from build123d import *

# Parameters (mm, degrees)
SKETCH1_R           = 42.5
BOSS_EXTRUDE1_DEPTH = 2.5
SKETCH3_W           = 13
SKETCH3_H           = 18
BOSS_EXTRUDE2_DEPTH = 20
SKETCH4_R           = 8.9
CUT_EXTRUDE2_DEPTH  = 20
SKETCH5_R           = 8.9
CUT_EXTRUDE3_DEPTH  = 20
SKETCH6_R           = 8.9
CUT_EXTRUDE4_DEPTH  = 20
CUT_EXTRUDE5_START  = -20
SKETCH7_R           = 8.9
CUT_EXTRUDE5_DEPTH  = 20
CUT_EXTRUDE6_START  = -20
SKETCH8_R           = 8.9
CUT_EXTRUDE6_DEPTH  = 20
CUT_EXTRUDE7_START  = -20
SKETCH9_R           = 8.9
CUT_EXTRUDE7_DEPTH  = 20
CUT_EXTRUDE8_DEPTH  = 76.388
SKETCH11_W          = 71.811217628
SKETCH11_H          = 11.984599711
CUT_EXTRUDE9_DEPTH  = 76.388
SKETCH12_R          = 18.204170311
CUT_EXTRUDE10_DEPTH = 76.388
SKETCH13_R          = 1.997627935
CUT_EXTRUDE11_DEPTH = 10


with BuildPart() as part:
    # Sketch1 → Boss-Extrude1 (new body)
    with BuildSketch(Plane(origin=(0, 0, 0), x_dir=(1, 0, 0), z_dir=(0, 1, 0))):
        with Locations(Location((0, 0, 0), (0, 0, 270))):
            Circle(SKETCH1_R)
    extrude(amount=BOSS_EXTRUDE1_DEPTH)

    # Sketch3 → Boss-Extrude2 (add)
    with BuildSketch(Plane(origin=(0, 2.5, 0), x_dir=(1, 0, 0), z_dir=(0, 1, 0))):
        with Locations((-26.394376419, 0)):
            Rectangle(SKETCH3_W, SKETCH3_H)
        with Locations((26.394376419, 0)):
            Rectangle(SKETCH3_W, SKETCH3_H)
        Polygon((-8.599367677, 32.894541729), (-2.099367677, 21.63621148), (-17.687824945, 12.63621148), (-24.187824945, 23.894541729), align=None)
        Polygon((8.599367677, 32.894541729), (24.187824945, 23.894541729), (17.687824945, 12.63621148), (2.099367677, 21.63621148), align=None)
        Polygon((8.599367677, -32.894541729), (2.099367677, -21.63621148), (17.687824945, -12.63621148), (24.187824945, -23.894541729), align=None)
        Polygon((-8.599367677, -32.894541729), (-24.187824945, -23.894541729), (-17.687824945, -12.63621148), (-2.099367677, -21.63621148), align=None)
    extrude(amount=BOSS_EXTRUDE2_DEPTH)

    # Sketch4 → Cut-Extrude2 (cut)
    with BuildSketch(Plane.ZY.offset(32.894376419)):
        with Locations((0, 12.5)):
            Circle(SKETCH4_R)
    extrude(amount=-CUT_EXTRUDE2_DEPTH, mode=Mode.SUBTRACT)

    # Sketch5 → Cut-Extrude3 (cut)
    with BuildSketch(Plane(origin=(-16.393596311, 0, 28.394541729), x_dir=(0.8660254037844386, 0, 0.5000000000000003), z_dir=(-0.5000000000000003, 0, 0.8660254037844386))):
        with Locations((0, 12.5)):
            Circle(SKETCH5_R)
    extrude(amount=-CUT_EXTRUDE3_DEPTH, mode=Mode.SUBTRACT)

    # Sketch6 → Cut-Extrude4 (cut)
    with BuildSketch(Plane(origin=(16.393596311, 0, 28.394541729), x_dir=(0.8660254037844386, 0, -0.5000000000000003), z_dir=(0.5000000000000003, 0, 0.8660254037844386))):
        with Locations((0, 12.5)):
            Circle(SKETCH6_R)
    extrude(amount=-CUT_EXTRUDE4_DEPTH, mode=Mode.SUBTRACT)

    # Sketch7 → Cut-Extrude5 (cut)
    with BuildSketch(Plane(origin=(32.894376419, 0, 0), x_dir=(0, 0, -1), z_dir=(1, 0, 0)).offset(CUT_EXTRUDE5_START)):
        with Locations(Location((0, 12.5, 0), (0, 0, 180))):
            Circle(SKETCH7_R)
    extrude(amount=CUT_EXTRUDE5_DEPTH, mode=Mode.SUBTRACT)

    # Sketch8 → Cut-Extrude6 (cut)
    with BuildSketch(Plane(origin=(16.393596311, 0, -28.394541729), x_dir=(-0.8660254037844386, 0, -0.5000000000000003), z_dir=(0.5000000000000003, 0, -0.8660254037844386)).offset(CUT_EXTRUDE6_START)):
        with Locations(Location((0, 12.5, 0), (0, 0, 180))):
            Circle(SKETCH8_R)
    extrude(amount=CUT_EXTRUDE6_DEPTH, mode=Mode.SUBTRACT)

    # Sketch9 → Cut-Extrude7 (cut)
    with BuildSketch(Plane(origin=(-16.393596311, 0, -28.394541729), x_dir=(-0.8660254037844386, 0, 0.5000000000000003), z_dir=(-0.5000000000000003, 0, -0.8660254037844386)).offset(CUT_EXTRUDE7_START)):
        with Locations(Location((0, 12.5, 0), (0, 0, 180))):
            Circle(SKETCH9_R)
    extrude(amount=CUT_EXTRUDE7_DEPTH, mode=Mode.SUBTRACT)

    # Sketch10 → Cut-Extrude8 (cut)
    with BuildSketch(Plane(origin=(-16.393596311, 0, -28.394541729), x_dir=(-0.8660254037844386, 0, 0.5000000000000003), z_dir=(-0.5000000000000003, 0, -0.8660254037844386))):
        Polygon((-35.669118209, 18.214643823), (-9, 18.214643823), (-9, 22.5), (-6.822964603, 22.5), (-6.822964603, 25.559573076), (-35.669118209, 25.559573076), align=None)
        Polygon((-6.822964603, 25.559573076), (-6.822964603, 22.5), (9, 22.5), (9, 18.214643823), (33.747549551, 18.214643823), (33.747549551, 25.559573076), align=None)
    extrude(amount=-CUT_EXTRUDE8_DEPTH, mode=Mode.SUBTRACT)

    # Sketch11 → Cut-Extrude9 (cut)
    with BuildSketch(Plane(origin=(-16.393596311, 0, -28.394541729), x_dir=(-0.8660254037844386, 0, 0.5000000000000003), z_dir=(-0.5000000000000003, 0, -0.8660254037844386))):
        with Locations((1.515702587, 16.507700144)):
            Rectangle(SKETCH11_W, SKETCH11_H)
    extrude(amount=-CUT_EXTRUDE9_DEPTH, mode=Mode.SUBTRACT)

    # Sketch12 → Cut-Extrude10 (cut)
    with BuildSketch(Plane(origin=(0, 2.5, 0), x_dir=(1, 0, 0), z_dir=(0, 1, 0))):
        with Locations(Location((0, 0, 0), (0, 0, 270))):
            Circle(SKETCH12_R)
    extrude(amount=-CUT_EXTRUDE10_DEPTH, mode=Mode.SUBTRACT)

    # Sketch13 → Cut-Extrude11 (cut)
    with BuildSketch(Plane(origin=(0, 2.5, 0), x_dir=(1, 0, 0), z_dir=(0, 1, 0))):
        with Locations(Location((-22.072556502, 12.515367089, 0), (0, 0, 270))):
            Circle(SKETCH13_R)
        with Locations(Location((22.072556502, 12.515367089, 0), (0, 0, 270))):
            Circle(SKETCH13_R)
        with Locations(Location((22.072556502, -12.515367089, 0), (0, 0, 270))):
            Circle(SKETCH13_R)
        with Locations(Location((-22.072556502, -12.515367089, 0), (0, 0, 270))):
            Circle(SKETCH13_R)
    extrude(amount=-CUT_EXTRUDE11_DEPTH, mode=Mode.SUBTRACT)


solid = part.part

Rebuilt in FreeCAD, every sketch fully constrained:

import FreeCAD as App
import Part
import Sketcher
from FreeCAD import Vector
Q = App.Units.Quantity


def add_polygon(sketch, points):
    """Adds a closed chain of lines whose ends are joined by coincident constraints."""
    first, n = sketch.GeometryCount, len(points)
    for a, b in zip(points, points[1:] + points[:1]):
        sketch.addGeometry(Part.LineSegment(App.Vector(*a, 0), App.Vector(*b, 0)), False)
    for i in range(n):
        sketch.addConstraint(Sketcher.Constraint("Coincident", first + i, 2, first + (i + 1) % n, 1))

doc = App.newDocument("Part")
body = doc.addObject("PartDesign::Body", "Body")

sketch1 = body.newObject("Sketcher::SketchObject", "Sketch")
sketch1.AttachmentSupport = (doc.getObject("XZ_Plane"), [""])
sketch1.MapMode = "FlatFace"
sketch1.addGeometry(Part.Circle(Vector(0, 0, 0), Vector(0, 0, 1), 42), False)
sketch1.addConstraint(Sketcher.Constraint("Coincident", 0, 3, -1, 1))
sketch1.addConstraint(Sketcher.Constraint("Diameter", 0, Q("85 mm")))
pad1 = body.newObject("PartDesign::Pad", "Pad")
pad1.Profile = sketch1
pad1.Length = 2.5
pad1.Reversed = True

sketch2 = body.newObject("Sketcher::SketchObject", "Sketch001")
sketch2.AttachmentSupport = (doc.getObject("XZ_Plane"), [""])
sketch2.MapMode = "FlatFace"
sketch2.AttachmentOffset = App.Placement(Vector(0, 0, -2.5), App.Rotation())
add_polygon(sketch2, [(-33, -9), (-33, 9), (-20, 9), (-20, -9)])
add_polygon(sketch2, [(20, -9), (20, 9), (33, 9), (33, -9)])
add_polygon(sketch2, [(-2, -22), (-9, -33), (-24, -24), (-18, -13)])
add_polygon(sketch2, [(24, -24), (9, -33), (2, -22), (18, -13)])
add_polygon(sketch2, [(2, 22), (9, 33), (24, 24), (18, 13)])
add_polygon(sketch2, [(-24, 24), (-9, 33), (-2, 22), (-18, 13)])
sketch2.addConstraint(Sketcher.Constraint("Vertical", 0))
sketch2.addConstraint(Sketcher.Constraint("Horizontal", 1))
sketch2.addConstraint(Sketcher.Constraint("Vertical", 2))
sketch2.addConstraint(Sketcher.Constraint("Horizontal", 3))
sketch2.addConstraint(Sketcher.Constraint("Vertical", 4))
sketch2.addConstraint(Sketcher.Constraint("Horizontal", 5))
sketch2.addConstraint(Sketcher.Constraint("Vertical", 6))
sketch2.addConstraint(Sketcher.Constraint("Horizontal", 7))
sketch2.addConstraint(Sketcher.Constraint("Symmetric", 2, 2, 4, 2, -1, 1))
sketch2.addConstraint(Sketcher.Constraint("Symmetric", 0, 2, 6, 2, -1, 1))
sketch2.addConstraint(Sketcher.Constraint("Symmetric", 8, 2, 16, 2, -1, 1))
sketch2.addConstraint(Sketcher.Constraint("Symmetric", 9, 2, 17, 2, -1, 1))
sketch2.addConstraint(Sketcher.Constraint("Symmetric", 10, 2, 18, 2, -1, 1))
sketch2.addConstraint(Sketcher.Constraint("Symmetric", 11, 2, 19, 2, -1, 1))
sketch2.addConstraint(Sketcher.Constraint("Symmetric", 12, 2, 20, 2, -1, 1))
sketch2.addConstraint(Sketcher.Constraint("Symmetric", 13, 2, 21, 2, -1, 1))
sketch2.addConstraint(Sketcher.Constraint("Symmetric", 14, 2, 22, 2, -1, 1))
sketch2.addConstraint(Sketcher.Constraint("Symmetric", 15, 2, 23, 2, -1, 1))
sketch2.addConstraint(Sketcher.Constraint("Symmetric", 8, 2, 12, 2, -2))
sketch2.addConstraint(Sketcher.Constraint("Symmetric", 11, 2, 13, 2, -2))
sketch2.addConstraint(Sketcher.Constraint("Symmetric", 10, 2, 14, 2, -2))
sketch2.addConstraint(Sketcher.Constraint("Symmetric", 9, 2, 15, 2, -2))
sketch2.addConstraint(Sketcher.Constraint("Perpendicular", 8, 9))
sketch2.addConstraint(Sketcher.Constraint("Perpendicular", 9, 10))
sketch2.addConstraint(Sketcher.Constraint("Perpendicular", 10, 11))
sketch2.addConstraint(Sketcher.Constraint("Horizontal", 1, 2, 4, 2))
sketch2.addConstraint(Sketcher.Constraint("DistanceX", 1, 1, 1, 2, Q("13 mm")))
sketch2.addConstraint(Sketcher.Constraint("DistanceY", 0, 1, 0, 2, Q("18 mm")))
sketch2.addConstraint(Sketcher.Constraint("Angle", 8, Q("-120 deg")))
sketch2.addConstraint(Sketcher.Constraint("Distance", 8, Q("13 mm")))
sketch2.addConstraint(Sketcher.Constraint("Distance", 9, Q("18 mm")))
sketch2.addConstraint(Sketcher.Constraint("DistanceY", 8, 2, -1, 1, Q("32.894542 mm")))
sketch2.addConstraint(Sketcher.Constraint("DistanceX", 2, 2, 8, 2, Q("11.295009 mm")))
sketch2.addConstraint(Sketcher.Constraint("DistanceX", 0, 2, -1, 1, Q("32.894376 mm")))
pad2 = body.newObject("PartDesign::Pad", "Pad001")
pad2.Profile = sketch2
pad2.Length = 20
pad2.Reversed = True

sketch3 = body.newObject("Sketcher::SketchObject", "Sketch002")
sketch3.AttachmentSupport = (doc.getObject("YZ_Plane"), [""])
sketch3.MapMode = "FlatFace"
sketch3.AttachmentOffset = App.Placement(Vector(0, 0, -32.894376), App.Rotation())
sketch3.addGeometry(Part.Circle(Vector(12, 0, 0), Vector(0, 0, 1), 9), False)
sketch3.addConstraint(Sketcher.Constraint("PointOnObject", 0, 3, -1))
sketch3.addConstraint(Sketcher.Constraint("Diameter", 0, Q("17.8 mm")))
sketch3.addConstraint(Sketcher.Constraint("DistanceX", -1, 1, 0, 3, Q("12.5 mm")))
pocket1 = body.newObject("PartDesign::Pocket", "Pocket")
pocket1.Profile = sketch3
pocket1.Length = 20
pocket1.Reversed = True

sketch4 = body.newObject("Sketcher::SketchObject", "Sketch003")
sketch4.Placement = App.Placement(Vector(-16.393596, 0, 28.394542), App.Rotation(Vector(0.866025404, 0, 0.5), Vector(0, 1, 0), Vector(-0.5, 0, 0.866025404), "ZXY"))
sketch4.addGeometry(Part.Circle(Vector(0, 13, 0), Vector(0, 0, 1), 9), False)
sketch4.addConstraint(Sketcher.Constraint("PointOnObject", 0, 3, -2))
sketch4.addConstraint(Sketcher.Constraint("Diameter", 0, Q("17.8 mm")))
sketch4.addConstraint(Sketcher.Constraint("DistanceY", -1, 1, 0, 3, Q("12.5 mm")))
pocket2 = body.newObject("PartDesign::Pocket", "Pocket001")
pocket2.Profile = sketch4
pocket2.Length = 20

sketch5 = body.newObject("Sketcher::SketchObject", "Sketch004")
sketch5.Placement = App.Placement(Vector(16.393596, 0, 28.394542), App.Rotation(Vector(0.866025404, 0, -0.5), Vector(0, 1, 0), Vector(0.5, 0, 0.866025404), "ZXY"))
sketch5.addGeometry(Part.Circle(Vector(0, 13, 0), Vector(0, 0, 1), 9), False)
sketch5.addConstraint(Sketcher.Constraint("PointOnObject", 0, 3, -2))
sketch5.addConstraint(Sketcher.Constraint("Diameter", 0, Q("17.8 mm")))
sketch5.addConstraint(Sketcher.Constraint("DistanceY", -1, 1, 0, 3, Q("12.5 mm")))
pocket3 = body.newObject("PartDesign::Pocket", "Pocket002")
pocket3.Profile = sketch5
pocket3.Length = 20

sketch6 = body.newObject("Sketcher::SketchObject", "Sketch005")
sketch6.AttachmentSupport = (doc.getObject("YZ_Plane"), [""])
sketch6.MapMode = "FlatFace"
sketch6.AttachmentOffset = App.Placement(Vector(0, 0, 12.894376), App.Rotation())
sketch6.addGeometry(Part.Circle(Vector(12, 0, 0), Vector(0, 0, 1), 9), False)
sketch6.addConstraint(Sketcher.Constraint("PointOnObject", 0, 3, -1))
sketch6.addConstraint(Sketcher.Constraint("Diameter", 0, Q("17.8 mm")))
sketch6.addConstraint(Sketcher.Constraint("DistanceX", -1, 1, 0, 3, Q("12.5 mm")))
pocket4 = body.newObject("PartDesign::Pocket", "Pocket003")
pocket4.Profile = sketch6
pocket4.Length = 20
pocket4.Reversed = True

sketch7 = body.newObject("Sketcher::SketchObject", "Sketch006")
sketch7.Placement = App.Placement(Vector(6.393596, 0, -11.074034), App.Rotation(Vector(-0.866025404, 0, -0.5), Vector(0, 1, 0), Vector(0.5, 0, -0.866025404), "ZXY"))
sketch7.addGeometry(Part.Circle(Vector(0, 13, 0), Vector(0, 0, 1), 9), False)
sketch7.addConstraint(Sketcher.Constraint("PointOnObject", 0, 3, -2))
sketch7.addConstraint(Sketcher.Constraint("Diameter", 0, Q("17.8 mm")))
sketch7.addConstraint(Sketcher.Constraint("DistanceY", -1, 1, 0, 3, Q("12.5 mm")))
pocket5 = body.newObject("PartDesign::Pocket", "Pocket004")
pocket5.Profile = sketch7
pocket5.Length = 20
pocket5.Reversed = True

sketch8 = body.newObject("Sketcher::SketchObject", "Sketch007")
sketch8.Placement = App.Placement(Vector(-6.393596, 0, -11.074034), App.Rotation(Vector(-0.866025404, 0, 0.5), Vector(0, 1, 0), Vector(-0.5, 0, -0.866025404), "ZXY"))
sketch8.addGeometry(Part.Circle(Vector(0, 13, 0), Vector(0, 0, 1), 9), False)
sketch8.addConstraint(Sketcher.Constraint("PointOnObject", 0, 3, -2))
sketch8.addConstraint(Sketcher.Constraint("Diameter", 0, Q("17.8 mm")))
sketch8.addConstraint(Sketcher.Constraint("DistanceY", -1, 1, 0, 3, Q("12.5 mm")))
pocket6 = body.newObject("PartDesign::Pocket", "Pocket005")
pocket6.Profile = sketch8
pocket6.Length = 20
pocket6.Reversed = True

sketch9 = body.newObject("Sketcher::SketchObject", "Sketch008")
sketch9.Placement = App.Placement(Vector(-16.393596, 0, -28.394542), App.Rotation(Vector(-0.866025404, 0, 0.5), Vector(0, 1, 0), Vector(-0.5, 0, -0.866025404), "ZXY"))
add_polygon(sketch9, [(-35.7, 18.2), (-9, 18.2), (-9, 22.5), (9, 22.5), (9, 18.2), (33.7, 18.2), (33.7, 25.6), (-35.7, 25.6)])
sketch9.addConstraint(Sketcher.Constraint("Horizontal", 0))
sketch9.addConstraint(Sketcher.Constraint("Vertical", 1))
sketch9.addConstraint(Sketcher.Constraint("Horizontal", 2))
sketch9.addConstraint(Sketcher.Constraint("Vertical", 3))
sketch9.addConstraint(Sketcher.Constraint("Horizontal", 4))
sketch9.addConstraint(Sketcher.Constraint("Vertical", 5))
sketch9.addConstraint(Sketcher.Constraint("Horizontal", 6))
sketch9.addConstraint(Sketcher.Constraint("Vertical", 7))
sketch9.addConstraint(Sketcher.Constraint("Symmetric", 0, 2, 3, 2, -2))
sketch9.addConstraint(Sketcher.Constraint("DistanceX", 2, 1, 2, 2, Q("18 mm")))
sketch9.addConstraint(Sketcher.Constraint("DistanceY", -1, 1, 1, 2, Q("22.5 mm")))
sketch9.addConstraint(Sketcher.Constraint("DistanceX", 0, 1, 0, 2, Q("26.669118 mm")))
sketch9.addConstraint(Sketcher.Constraint("DistanceX", 4, 1, 4, 2, Q("24.74755 mm")))
sketch9.addConstraint(Sketcher.Constraint("DistanceY", 5, 1, 5, 2, Q("7.344929 mm")))
sketch9.addConstraint(Sketcher.Constraint("DistanceY", 1, 1, 1, 2, Q("4.285356 mm")))
pocket7 = body.newObject("PartDesign::Pocket", "Pocket006")
pocket7.Profile = sketch9
pocket7.Length = 76.388

sketch10 = body.newObject("Sketcher::SketchObject", "Sketch009")
sketch10.Placement = App.Placement(Vector(-16.393596, 0, -28.394542), App.Rotation(Vector(-0.866025404, 0, 0.5), Vector(0, 1, 0), Vector(-0.5, 0, -0.866025404), "ZXY"))
add_polygon(sketch10, [(-34, 23), (-34, 11), (37, 11), (37, 23)])
sketch10.addConstraint(Sketcher.Constraint("Vertical", 0))
sketch10.addConstraint(Sketcher.Constraint("Horizontal", 1))
sketch10.addConstraint(Sketcher.Constraint("Vertical", 2))
sketch10.addConstraint(Sketcher.Constraint("Horizontal", 3))
sketch10.addConstraint(Sketcher.Constraint("DistanceY", -1, 1, 2, 2, Q("22.5 mm")))
sketch10.addConstraint(Sketcher.Constraint("DistanceY", 0, 2, 0, 1, Q("11.9846 mm")))
sketch10.addConstraint(Sketcher.Constraint("DistanceX", 1, 1, 1, 2, Q("71.811218 mm")))
sketch10.addConstraint(Sketcher.Constraint("DistanceX", -1, 1, 1, 2, Q("37.421311 mm")))
pocket8 = body.newObject("PartDesign::Pocket", "Pocket007")
pocket8.Profile = sketch10
pocket8.Length = 76.388

sketch11 = body.newObject("Sketcher::SketchObject", "Sketch010")
sketch11.AttachmentSupport = (doc.getObject("XZ_Plane"), [""])
sketch11.MapMode = "FlatFace"
sketch11.AttachmentOffset = App.Placement(Vector(0, 0, -2.5), App.Rotation())
sketch11.addGeometry(Part.Circle(Vector(0, 0, 0), Vector(0, 0, 1), 18), False)
sketch11.addConstraint(Sketcher.Constraint("Coincident", 0, 3, -1, 1))
sketch11.addConstraint(Sketcher.Constraint("Diameter", 0, Q("36.408341 mm")))
pocket9 = body.newObject("PartDesign::Pocket", "Pocket008")
pocket9.Profile = sketch11
pocket9.Length = 76.388
pocket9.Reversed = True

sketch12 = body.newObject("Sketcher::SketchObject", "Sketch011")
sketch12.AttachmentSupport = (doc.getObject("XZ_Plane"), [""])
sketch12.MapMode = "FlatFace"
sketch12.AttachmentOffset = App.Placement(Vector(0, 0, -2.5), App.Rotation())
sketch12.addGeometry(Part.Circle(Vector(-22.1, -12.5, 0), Vector(0, 0, 1), 2), False)
sketch12.addGeometry(Part.Circle(Vector(22.1, -12.5, 0), Vector(0, 0, 1), 2), False)
sketch12.addGeometry(Part.Circle(Vector(22.1, 12.5, 0), Vector(0, 0, 1), 2), False)
sketch12.addGeometry(Part.Circle(Vector(-22.1, 12.5, 0), Vector(0, 0, 1), 2), False)
sketch12.addConstraint(Sketcher.Constraint("Equal", 0, 1))
sketch12.addConstraint(Sketcher.Constraint("Equal", 1, 2))
sketch12.addConstraint(Sketcher.Constraint("Equal", 2, 3))
sketch12.addConstraint(Sketcher.Constraint("Symmetric", 0, 3, 2, 3, -1, 1))
sketch12.addConstraint(Sketcher.Constraint("Symmetric", 1, 3, 3, 3, -1, 1))
sketch12.addConstraint(Sketcher.Constraint("Symmetric", 0, 3, 1, 3, -2))
sketch12.addConstraint(Sketcher.Constraint("Diameter", 0, Q("3.995256 mm")))
sketch12.addConstraint(Sketcher.Constraint("DistanceX", 0, 3, -1, 1, Q("22.072557 mm")))
sketch12.addConstraint(Sketcher.Constraint("DistanceY", 0, 3, -1, 1, Q("12.515367 mm")))
pocket10 = body.newObject("PartDesign::Pocket", "Pocket009")
pocket10.Profile = sketch12
pocket10.Length = 10
pocket10.Reversed = True

doc.recompute()
